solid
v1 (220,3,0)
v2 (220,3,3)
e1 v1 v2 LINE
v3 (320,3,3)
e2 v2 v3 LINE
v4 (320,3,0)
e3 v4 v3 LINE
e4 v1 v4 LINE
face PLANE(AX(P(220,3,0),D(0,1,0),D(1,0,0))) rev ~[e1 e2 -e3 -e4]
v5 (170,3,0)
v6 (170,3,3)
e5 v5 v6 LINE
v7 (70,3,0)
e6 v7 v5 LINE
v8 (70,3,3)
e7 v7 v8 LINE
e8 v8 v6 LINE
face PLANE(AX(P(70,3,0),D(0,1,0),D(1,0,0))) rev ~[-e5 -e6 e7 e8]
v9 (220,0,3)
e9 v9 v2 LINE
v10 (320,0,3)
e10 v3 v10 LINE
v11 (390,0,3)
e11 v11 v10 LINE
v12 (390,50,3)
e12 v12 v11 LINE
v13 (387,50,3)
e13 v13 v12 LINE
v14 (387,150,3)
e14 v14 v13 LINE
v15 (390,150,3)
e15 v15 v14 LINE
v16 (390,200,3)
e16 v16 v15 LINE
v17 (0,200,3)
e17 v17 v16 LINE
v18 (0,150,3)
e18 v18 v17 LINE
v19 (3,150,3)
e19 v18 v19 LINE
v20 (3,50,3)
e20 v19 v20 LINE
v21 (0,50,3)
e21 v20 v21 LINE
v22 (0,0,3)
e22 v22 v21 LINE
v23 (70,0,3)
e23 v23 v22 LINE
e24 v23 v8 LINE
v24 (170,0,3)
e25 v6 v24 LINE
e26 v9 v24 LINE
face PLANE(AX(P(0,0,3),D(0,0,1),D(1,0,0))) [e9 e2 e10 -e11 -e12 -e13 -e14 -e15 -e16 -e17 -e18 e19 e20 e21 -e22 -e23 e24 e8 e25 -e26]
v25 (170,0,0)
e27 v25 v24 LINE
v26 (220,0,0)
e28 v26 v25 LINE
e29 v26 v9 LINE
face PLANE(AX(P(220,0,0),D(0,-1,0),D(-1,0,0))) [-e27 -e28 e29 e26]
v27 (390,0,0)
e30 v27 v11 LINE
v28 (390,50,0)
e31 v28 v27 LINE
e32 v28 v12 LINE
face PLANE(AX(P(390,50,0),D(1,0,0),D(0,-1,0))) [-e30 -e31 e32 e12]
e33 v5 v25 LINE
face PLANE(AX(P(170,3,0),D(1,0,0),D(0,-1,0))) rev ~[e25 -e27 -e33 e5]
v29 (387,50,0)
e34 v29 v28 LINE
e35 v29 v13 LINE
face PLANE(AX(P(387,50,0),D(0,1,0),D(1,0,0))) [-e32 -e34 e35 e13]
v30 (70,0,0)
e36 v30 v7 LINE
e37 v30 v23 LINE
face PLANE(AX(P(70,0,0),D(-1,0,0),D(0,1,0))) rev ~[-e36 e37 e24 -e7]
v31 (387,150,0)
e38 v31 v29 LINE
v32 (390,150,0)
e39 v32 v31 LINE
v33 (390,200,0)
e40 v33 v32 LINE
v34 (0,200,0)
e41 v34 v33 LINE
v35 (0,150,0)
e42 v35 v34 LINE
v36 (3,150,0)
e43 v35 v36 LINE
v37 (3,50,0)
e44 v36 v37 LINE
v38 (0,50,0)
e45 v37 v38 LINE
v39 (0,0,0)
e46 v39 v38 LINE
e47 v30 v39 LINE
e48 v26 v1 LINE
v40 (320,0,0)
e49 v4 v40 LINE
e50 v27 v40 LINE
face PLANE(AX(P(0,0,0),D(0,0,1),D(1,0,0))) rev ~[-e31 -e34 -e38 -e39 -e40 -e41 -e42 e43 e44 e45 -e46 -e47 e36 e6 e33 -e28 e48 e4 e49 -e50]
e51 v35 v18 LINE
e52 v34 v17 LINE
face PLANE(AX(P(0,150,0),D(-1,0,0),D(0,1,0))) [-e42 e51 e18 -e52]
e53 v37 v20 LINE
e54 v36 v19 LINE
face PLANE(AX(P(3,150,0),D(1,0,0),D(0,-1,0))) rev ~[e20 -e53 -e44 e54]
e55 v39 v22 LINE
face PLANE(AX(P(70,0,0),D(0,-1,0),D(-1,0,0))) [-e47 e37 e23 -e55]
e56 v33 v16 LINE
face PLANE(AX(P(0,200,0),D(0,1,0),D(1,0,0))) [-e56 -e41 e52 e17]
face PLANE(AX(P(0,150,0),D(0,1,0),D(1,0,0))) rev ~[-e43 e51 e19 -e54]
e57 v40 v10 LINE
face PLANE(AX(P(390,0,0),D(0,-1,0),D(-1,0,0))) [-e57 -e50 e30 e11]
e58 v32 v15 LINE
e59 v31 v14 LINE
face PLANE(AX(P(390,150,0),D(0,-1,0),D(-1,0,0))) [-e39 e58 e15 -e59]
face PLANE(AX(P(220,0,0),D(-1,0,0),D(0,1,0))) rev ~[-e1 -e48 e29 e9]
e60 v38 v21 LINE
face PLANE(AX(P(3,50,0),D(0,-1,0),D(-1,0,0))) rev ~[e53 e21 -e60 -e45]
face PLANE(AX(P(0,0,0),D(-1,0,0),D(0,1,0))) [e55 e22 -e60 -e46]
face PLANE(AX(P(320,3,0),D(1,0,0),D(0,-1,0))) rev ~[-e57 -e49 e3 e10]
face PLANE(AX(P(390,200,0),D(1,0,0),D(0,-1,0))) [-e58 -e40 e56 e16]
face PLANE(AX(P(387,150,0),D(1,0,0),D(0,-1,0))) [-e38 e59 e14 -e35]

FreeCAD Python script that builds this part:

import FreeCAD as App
import Part
import Sketcher
from FreeCAD import Vector
Q = App.Units.Quantity

doc = App.newDocument("Part")
params = doc.addObject("Spreadsheet::Sheet", "Params")
for row, (alias, value) in enumerate([
    ("sketch1_width", "390 mm"),
    ("sketch1_width2", "3 mm"),
    ("sketch1_width3", "100 mm"),
    ("sketch1_width4", "50 mm"),
    ("pad1_length", "3 mm"),
], start=1):
    params.set(f"A{row}", alias)
    params.set(f"B{row}", "=" + value)
    params.setAlias(f"B{row}", alias)

body = doc.addObject("PartDesign::Body", "Body")

# Sketch on XY plane
sketch1 = doc.addObject("Sketcher::SketchObject", "Sketch")
body.addObject(sketch1)
sketch1.AttachmentSupport = (doc.XY_Plane, [""])
sketch1.MapMode = "FlatFace"
sketch1.addGeometry([
    Part.LineSegment(Vector(390, 200, 0), Vector(0, 200, 0)),  # 0
    Part.LineSegment(Vector(0, 200, 0), Vector(0, 150, 0)),  # 1
    Part.LineSegment(Vector(0, 150, 0), Vector(3, 150, 0)),  # 2
    Part.LineSegment(Vector(3, 150, 0), Vector(3, 50, 0)),  # 3
    Part.LineSegment(Vector(3, 50, 0), Vector(0, 50, 0)),  # 4
    Part.LineSegment(Vector(0, 50, 0), Vector(0, 0, 0)),  # 5
    Part.LineSegment(Vector(0, 0, 0), Vector(70, 0, 0)),  # 6
    Part.LineSegment(Vector(70, 0, 0), Vector(70, 3, 0)),  # 7
    Part.LineSegment(Vector(70, 3, 0), Vector(170, 3, 0)),  # 8
    Part.LineSegment(Vector(170, 3, 0), Vector(170, 0, 0)),  # 9
    Part.LineSegment(Vector(170, 0, 0), Vector(220, 0, 0)),  # 10
    Part.LineSegment(Vector(220, 0, 0), Vector(220, 3, 0)),  # 11
    Part.LineSegment(Vector(220, 3, 0), Vector(320, 3, 0)),  # 12
    Part.LineSegment(Vector(320, 3, 0), Vector(320, 0, 0)),  # 13
    Part.LineSegment(Vector(320, 0, 0), Vector(390, 0, 0)),  # 14
    Part.LineSegment(Vector(390, 0, 0), Vector(390, 50, 0)),  # 15
    Part.LineSegment(Vector(390, 50, 0), Vector(387, 50, 0)),  # 16
    Part.LineSegment(Vector(387, 50, 0), Vector(387, 150, 0)),  # 17
    Part.LineSegment(Vector(387, 150, 0), Vector(390, 150, 0)),  # 18
    Part.LineSegment(Vector(390, 150, 0), Vector(390, 200, 0)),  # 19
], False)
sketch1.addConstraint([
    Sketcher.Constraint("Coincident", 0, 2, 1, 1),
    Sketcher.Constraint("Coincident", 1, 2, 2, 1),
    Sketcher.Constraint("Coincident", 2, 2, 3, 1),
    Sketcher.Constraint("Coincident", 3, 2, 4, 1),
    Sketcher.Constraint("Coincident", 4, 2, 5, 1),
    Sketcher.Constraint("Coincident", 5, 2, 6, 1),
    Sketcher.Constraint("Coincident", 6, 2, 7, 1),
    Sketcher.Constraint("Coincident", 7, 2, 8, 1),
    Sketcher.Constraint("Coincident", 8, 2, 9, 1),
    Sketcher.Constraint("Coincident", 9, 2, 10, 1),
    Sketcher.Constraint("Coincident", 10, 2, 11, 1),
    Sketcher.Constraint("Coincident", 11, 2, 12, 1),
    Sketcher.Constraint("Coincident", 12, 2, 13, 1),
    Sketcher.Constraint("Coincident", 13, 2, 14, 1),
    Sketcher.Constraint("Coincident", 14, 2, 15, 1),
    Sketcher.Constraint("Coincident", 15, 2, 16, 1),
    Sketcher.Constraint("Coincident", 16, 2, 17, 1),
    Sketcher.Constraint("Coincident", 17, 2, 18, 1),
    Sketcher.Constraint("Coincident", 18, 2, 19, 1),
    Sketcher.Constraint("Coincident", 19, 2, 0, 1),
    Sketcher.Constraint("Horizontal", 0),
    Sketcher.Constraint("Vertical", 1),
    Sketcher.Constraint("Horizontal", 2),
    Sketcher.Constraint("Vertical", 3),
    Sketcher.Constraint("Horizontal", 4),
    Sketcher.Constraint("Vertical", 5),
    Sketcher.Constraint("Horizontal", 6),
    Sketcher.Constraint("Vertical", 7),
    Sketcher.Constraint("Horizontal", 8),
    Sketcher.Constraint("Vertical", 9),
    Sketcher.Constraint("Horizontal", 10),
    Sketcher.Constraint("Vertical", 11),
    Sketcher.Constraint("Horizontal", 12),
    Sketcher.Constraint("Vertical", 13),
    Sketcher.Constraint("Horizontal", 14),
    Sketcher.Constraint("Vertical", 15),
    Sketcher.Constraint("Horizontal", 16),
    Sketcher.Constraint("Vertical", 17),
    Sketcher.Constraint("Horizontal", 18),
    Sketcher.Constraint("Vertical", 19),
    Sketcher.Constraint("Coincident", 5, 2, -1, 1),
    Sketcher.Constraint("PointOnObject", 0, 2, -2),
    Sketcher.Constraint("PointOnObject", 9, 2, -1),
    Sketcher.Constraint("PointOnObject", 13, 2, -1),
    Sketcher.Constraint("Horizontal", 8, 2, 11, 2),
    Sketcher.Constraint("Horizontal", 4, 2, 15, 2),
    Sketcher.Constraint("Horizontal", 2, 2, 17, 2),
    Sketcher.Constraint("Vertical", 15, 2, 18, 2),
    Sketcher.Constraint("Equal", 8, 12),
    Sketcher.Constraint("Equal", 6, 14),
    Sketcher.Constraint("Equal", 4, 16),
    Sketcher.Constraint("Equal", 10, 1),
    Sketcher.Constraint("Equal", 12, 3),
    Sketcher.Constraint("Equal", 1, 5),
    Sketcher.Constraint("Equal", 18, 7),
    Sketcher.Constraint("DistanceX", 0, 2, 0, 1, Q("390 mm")),
    Sketcher.Constraint("DistanceX", 2, 1, 2, 2, Q("3 mm")),
    Sketcher.Constraint("DistanceX", 8, 1, 8, 2, Q("100 mm")),
    Sketcher.Constraint("DistanceX", 10, 1, 10, 2, Q("50 mm")),
])
sketch1.setExpression("Constraints[55]", "Params.sketch1_width")
sketch1.setExpression("Constraints[56]", "Params.sketch1_width2")
sketch1.setExpression("Constraints[57]", "Params.sketch1_width3")
sketch1.setExpression("Constraints[58]", "Params.sketch1_width4")
pad1 = doc.addObject("PartDesign::Pad", "Pad")
body.addObject(pad1)
pad1.Profile = sketch1
pad1.setExpression("Length", "Params.pad1_length")

doc.recompute()
